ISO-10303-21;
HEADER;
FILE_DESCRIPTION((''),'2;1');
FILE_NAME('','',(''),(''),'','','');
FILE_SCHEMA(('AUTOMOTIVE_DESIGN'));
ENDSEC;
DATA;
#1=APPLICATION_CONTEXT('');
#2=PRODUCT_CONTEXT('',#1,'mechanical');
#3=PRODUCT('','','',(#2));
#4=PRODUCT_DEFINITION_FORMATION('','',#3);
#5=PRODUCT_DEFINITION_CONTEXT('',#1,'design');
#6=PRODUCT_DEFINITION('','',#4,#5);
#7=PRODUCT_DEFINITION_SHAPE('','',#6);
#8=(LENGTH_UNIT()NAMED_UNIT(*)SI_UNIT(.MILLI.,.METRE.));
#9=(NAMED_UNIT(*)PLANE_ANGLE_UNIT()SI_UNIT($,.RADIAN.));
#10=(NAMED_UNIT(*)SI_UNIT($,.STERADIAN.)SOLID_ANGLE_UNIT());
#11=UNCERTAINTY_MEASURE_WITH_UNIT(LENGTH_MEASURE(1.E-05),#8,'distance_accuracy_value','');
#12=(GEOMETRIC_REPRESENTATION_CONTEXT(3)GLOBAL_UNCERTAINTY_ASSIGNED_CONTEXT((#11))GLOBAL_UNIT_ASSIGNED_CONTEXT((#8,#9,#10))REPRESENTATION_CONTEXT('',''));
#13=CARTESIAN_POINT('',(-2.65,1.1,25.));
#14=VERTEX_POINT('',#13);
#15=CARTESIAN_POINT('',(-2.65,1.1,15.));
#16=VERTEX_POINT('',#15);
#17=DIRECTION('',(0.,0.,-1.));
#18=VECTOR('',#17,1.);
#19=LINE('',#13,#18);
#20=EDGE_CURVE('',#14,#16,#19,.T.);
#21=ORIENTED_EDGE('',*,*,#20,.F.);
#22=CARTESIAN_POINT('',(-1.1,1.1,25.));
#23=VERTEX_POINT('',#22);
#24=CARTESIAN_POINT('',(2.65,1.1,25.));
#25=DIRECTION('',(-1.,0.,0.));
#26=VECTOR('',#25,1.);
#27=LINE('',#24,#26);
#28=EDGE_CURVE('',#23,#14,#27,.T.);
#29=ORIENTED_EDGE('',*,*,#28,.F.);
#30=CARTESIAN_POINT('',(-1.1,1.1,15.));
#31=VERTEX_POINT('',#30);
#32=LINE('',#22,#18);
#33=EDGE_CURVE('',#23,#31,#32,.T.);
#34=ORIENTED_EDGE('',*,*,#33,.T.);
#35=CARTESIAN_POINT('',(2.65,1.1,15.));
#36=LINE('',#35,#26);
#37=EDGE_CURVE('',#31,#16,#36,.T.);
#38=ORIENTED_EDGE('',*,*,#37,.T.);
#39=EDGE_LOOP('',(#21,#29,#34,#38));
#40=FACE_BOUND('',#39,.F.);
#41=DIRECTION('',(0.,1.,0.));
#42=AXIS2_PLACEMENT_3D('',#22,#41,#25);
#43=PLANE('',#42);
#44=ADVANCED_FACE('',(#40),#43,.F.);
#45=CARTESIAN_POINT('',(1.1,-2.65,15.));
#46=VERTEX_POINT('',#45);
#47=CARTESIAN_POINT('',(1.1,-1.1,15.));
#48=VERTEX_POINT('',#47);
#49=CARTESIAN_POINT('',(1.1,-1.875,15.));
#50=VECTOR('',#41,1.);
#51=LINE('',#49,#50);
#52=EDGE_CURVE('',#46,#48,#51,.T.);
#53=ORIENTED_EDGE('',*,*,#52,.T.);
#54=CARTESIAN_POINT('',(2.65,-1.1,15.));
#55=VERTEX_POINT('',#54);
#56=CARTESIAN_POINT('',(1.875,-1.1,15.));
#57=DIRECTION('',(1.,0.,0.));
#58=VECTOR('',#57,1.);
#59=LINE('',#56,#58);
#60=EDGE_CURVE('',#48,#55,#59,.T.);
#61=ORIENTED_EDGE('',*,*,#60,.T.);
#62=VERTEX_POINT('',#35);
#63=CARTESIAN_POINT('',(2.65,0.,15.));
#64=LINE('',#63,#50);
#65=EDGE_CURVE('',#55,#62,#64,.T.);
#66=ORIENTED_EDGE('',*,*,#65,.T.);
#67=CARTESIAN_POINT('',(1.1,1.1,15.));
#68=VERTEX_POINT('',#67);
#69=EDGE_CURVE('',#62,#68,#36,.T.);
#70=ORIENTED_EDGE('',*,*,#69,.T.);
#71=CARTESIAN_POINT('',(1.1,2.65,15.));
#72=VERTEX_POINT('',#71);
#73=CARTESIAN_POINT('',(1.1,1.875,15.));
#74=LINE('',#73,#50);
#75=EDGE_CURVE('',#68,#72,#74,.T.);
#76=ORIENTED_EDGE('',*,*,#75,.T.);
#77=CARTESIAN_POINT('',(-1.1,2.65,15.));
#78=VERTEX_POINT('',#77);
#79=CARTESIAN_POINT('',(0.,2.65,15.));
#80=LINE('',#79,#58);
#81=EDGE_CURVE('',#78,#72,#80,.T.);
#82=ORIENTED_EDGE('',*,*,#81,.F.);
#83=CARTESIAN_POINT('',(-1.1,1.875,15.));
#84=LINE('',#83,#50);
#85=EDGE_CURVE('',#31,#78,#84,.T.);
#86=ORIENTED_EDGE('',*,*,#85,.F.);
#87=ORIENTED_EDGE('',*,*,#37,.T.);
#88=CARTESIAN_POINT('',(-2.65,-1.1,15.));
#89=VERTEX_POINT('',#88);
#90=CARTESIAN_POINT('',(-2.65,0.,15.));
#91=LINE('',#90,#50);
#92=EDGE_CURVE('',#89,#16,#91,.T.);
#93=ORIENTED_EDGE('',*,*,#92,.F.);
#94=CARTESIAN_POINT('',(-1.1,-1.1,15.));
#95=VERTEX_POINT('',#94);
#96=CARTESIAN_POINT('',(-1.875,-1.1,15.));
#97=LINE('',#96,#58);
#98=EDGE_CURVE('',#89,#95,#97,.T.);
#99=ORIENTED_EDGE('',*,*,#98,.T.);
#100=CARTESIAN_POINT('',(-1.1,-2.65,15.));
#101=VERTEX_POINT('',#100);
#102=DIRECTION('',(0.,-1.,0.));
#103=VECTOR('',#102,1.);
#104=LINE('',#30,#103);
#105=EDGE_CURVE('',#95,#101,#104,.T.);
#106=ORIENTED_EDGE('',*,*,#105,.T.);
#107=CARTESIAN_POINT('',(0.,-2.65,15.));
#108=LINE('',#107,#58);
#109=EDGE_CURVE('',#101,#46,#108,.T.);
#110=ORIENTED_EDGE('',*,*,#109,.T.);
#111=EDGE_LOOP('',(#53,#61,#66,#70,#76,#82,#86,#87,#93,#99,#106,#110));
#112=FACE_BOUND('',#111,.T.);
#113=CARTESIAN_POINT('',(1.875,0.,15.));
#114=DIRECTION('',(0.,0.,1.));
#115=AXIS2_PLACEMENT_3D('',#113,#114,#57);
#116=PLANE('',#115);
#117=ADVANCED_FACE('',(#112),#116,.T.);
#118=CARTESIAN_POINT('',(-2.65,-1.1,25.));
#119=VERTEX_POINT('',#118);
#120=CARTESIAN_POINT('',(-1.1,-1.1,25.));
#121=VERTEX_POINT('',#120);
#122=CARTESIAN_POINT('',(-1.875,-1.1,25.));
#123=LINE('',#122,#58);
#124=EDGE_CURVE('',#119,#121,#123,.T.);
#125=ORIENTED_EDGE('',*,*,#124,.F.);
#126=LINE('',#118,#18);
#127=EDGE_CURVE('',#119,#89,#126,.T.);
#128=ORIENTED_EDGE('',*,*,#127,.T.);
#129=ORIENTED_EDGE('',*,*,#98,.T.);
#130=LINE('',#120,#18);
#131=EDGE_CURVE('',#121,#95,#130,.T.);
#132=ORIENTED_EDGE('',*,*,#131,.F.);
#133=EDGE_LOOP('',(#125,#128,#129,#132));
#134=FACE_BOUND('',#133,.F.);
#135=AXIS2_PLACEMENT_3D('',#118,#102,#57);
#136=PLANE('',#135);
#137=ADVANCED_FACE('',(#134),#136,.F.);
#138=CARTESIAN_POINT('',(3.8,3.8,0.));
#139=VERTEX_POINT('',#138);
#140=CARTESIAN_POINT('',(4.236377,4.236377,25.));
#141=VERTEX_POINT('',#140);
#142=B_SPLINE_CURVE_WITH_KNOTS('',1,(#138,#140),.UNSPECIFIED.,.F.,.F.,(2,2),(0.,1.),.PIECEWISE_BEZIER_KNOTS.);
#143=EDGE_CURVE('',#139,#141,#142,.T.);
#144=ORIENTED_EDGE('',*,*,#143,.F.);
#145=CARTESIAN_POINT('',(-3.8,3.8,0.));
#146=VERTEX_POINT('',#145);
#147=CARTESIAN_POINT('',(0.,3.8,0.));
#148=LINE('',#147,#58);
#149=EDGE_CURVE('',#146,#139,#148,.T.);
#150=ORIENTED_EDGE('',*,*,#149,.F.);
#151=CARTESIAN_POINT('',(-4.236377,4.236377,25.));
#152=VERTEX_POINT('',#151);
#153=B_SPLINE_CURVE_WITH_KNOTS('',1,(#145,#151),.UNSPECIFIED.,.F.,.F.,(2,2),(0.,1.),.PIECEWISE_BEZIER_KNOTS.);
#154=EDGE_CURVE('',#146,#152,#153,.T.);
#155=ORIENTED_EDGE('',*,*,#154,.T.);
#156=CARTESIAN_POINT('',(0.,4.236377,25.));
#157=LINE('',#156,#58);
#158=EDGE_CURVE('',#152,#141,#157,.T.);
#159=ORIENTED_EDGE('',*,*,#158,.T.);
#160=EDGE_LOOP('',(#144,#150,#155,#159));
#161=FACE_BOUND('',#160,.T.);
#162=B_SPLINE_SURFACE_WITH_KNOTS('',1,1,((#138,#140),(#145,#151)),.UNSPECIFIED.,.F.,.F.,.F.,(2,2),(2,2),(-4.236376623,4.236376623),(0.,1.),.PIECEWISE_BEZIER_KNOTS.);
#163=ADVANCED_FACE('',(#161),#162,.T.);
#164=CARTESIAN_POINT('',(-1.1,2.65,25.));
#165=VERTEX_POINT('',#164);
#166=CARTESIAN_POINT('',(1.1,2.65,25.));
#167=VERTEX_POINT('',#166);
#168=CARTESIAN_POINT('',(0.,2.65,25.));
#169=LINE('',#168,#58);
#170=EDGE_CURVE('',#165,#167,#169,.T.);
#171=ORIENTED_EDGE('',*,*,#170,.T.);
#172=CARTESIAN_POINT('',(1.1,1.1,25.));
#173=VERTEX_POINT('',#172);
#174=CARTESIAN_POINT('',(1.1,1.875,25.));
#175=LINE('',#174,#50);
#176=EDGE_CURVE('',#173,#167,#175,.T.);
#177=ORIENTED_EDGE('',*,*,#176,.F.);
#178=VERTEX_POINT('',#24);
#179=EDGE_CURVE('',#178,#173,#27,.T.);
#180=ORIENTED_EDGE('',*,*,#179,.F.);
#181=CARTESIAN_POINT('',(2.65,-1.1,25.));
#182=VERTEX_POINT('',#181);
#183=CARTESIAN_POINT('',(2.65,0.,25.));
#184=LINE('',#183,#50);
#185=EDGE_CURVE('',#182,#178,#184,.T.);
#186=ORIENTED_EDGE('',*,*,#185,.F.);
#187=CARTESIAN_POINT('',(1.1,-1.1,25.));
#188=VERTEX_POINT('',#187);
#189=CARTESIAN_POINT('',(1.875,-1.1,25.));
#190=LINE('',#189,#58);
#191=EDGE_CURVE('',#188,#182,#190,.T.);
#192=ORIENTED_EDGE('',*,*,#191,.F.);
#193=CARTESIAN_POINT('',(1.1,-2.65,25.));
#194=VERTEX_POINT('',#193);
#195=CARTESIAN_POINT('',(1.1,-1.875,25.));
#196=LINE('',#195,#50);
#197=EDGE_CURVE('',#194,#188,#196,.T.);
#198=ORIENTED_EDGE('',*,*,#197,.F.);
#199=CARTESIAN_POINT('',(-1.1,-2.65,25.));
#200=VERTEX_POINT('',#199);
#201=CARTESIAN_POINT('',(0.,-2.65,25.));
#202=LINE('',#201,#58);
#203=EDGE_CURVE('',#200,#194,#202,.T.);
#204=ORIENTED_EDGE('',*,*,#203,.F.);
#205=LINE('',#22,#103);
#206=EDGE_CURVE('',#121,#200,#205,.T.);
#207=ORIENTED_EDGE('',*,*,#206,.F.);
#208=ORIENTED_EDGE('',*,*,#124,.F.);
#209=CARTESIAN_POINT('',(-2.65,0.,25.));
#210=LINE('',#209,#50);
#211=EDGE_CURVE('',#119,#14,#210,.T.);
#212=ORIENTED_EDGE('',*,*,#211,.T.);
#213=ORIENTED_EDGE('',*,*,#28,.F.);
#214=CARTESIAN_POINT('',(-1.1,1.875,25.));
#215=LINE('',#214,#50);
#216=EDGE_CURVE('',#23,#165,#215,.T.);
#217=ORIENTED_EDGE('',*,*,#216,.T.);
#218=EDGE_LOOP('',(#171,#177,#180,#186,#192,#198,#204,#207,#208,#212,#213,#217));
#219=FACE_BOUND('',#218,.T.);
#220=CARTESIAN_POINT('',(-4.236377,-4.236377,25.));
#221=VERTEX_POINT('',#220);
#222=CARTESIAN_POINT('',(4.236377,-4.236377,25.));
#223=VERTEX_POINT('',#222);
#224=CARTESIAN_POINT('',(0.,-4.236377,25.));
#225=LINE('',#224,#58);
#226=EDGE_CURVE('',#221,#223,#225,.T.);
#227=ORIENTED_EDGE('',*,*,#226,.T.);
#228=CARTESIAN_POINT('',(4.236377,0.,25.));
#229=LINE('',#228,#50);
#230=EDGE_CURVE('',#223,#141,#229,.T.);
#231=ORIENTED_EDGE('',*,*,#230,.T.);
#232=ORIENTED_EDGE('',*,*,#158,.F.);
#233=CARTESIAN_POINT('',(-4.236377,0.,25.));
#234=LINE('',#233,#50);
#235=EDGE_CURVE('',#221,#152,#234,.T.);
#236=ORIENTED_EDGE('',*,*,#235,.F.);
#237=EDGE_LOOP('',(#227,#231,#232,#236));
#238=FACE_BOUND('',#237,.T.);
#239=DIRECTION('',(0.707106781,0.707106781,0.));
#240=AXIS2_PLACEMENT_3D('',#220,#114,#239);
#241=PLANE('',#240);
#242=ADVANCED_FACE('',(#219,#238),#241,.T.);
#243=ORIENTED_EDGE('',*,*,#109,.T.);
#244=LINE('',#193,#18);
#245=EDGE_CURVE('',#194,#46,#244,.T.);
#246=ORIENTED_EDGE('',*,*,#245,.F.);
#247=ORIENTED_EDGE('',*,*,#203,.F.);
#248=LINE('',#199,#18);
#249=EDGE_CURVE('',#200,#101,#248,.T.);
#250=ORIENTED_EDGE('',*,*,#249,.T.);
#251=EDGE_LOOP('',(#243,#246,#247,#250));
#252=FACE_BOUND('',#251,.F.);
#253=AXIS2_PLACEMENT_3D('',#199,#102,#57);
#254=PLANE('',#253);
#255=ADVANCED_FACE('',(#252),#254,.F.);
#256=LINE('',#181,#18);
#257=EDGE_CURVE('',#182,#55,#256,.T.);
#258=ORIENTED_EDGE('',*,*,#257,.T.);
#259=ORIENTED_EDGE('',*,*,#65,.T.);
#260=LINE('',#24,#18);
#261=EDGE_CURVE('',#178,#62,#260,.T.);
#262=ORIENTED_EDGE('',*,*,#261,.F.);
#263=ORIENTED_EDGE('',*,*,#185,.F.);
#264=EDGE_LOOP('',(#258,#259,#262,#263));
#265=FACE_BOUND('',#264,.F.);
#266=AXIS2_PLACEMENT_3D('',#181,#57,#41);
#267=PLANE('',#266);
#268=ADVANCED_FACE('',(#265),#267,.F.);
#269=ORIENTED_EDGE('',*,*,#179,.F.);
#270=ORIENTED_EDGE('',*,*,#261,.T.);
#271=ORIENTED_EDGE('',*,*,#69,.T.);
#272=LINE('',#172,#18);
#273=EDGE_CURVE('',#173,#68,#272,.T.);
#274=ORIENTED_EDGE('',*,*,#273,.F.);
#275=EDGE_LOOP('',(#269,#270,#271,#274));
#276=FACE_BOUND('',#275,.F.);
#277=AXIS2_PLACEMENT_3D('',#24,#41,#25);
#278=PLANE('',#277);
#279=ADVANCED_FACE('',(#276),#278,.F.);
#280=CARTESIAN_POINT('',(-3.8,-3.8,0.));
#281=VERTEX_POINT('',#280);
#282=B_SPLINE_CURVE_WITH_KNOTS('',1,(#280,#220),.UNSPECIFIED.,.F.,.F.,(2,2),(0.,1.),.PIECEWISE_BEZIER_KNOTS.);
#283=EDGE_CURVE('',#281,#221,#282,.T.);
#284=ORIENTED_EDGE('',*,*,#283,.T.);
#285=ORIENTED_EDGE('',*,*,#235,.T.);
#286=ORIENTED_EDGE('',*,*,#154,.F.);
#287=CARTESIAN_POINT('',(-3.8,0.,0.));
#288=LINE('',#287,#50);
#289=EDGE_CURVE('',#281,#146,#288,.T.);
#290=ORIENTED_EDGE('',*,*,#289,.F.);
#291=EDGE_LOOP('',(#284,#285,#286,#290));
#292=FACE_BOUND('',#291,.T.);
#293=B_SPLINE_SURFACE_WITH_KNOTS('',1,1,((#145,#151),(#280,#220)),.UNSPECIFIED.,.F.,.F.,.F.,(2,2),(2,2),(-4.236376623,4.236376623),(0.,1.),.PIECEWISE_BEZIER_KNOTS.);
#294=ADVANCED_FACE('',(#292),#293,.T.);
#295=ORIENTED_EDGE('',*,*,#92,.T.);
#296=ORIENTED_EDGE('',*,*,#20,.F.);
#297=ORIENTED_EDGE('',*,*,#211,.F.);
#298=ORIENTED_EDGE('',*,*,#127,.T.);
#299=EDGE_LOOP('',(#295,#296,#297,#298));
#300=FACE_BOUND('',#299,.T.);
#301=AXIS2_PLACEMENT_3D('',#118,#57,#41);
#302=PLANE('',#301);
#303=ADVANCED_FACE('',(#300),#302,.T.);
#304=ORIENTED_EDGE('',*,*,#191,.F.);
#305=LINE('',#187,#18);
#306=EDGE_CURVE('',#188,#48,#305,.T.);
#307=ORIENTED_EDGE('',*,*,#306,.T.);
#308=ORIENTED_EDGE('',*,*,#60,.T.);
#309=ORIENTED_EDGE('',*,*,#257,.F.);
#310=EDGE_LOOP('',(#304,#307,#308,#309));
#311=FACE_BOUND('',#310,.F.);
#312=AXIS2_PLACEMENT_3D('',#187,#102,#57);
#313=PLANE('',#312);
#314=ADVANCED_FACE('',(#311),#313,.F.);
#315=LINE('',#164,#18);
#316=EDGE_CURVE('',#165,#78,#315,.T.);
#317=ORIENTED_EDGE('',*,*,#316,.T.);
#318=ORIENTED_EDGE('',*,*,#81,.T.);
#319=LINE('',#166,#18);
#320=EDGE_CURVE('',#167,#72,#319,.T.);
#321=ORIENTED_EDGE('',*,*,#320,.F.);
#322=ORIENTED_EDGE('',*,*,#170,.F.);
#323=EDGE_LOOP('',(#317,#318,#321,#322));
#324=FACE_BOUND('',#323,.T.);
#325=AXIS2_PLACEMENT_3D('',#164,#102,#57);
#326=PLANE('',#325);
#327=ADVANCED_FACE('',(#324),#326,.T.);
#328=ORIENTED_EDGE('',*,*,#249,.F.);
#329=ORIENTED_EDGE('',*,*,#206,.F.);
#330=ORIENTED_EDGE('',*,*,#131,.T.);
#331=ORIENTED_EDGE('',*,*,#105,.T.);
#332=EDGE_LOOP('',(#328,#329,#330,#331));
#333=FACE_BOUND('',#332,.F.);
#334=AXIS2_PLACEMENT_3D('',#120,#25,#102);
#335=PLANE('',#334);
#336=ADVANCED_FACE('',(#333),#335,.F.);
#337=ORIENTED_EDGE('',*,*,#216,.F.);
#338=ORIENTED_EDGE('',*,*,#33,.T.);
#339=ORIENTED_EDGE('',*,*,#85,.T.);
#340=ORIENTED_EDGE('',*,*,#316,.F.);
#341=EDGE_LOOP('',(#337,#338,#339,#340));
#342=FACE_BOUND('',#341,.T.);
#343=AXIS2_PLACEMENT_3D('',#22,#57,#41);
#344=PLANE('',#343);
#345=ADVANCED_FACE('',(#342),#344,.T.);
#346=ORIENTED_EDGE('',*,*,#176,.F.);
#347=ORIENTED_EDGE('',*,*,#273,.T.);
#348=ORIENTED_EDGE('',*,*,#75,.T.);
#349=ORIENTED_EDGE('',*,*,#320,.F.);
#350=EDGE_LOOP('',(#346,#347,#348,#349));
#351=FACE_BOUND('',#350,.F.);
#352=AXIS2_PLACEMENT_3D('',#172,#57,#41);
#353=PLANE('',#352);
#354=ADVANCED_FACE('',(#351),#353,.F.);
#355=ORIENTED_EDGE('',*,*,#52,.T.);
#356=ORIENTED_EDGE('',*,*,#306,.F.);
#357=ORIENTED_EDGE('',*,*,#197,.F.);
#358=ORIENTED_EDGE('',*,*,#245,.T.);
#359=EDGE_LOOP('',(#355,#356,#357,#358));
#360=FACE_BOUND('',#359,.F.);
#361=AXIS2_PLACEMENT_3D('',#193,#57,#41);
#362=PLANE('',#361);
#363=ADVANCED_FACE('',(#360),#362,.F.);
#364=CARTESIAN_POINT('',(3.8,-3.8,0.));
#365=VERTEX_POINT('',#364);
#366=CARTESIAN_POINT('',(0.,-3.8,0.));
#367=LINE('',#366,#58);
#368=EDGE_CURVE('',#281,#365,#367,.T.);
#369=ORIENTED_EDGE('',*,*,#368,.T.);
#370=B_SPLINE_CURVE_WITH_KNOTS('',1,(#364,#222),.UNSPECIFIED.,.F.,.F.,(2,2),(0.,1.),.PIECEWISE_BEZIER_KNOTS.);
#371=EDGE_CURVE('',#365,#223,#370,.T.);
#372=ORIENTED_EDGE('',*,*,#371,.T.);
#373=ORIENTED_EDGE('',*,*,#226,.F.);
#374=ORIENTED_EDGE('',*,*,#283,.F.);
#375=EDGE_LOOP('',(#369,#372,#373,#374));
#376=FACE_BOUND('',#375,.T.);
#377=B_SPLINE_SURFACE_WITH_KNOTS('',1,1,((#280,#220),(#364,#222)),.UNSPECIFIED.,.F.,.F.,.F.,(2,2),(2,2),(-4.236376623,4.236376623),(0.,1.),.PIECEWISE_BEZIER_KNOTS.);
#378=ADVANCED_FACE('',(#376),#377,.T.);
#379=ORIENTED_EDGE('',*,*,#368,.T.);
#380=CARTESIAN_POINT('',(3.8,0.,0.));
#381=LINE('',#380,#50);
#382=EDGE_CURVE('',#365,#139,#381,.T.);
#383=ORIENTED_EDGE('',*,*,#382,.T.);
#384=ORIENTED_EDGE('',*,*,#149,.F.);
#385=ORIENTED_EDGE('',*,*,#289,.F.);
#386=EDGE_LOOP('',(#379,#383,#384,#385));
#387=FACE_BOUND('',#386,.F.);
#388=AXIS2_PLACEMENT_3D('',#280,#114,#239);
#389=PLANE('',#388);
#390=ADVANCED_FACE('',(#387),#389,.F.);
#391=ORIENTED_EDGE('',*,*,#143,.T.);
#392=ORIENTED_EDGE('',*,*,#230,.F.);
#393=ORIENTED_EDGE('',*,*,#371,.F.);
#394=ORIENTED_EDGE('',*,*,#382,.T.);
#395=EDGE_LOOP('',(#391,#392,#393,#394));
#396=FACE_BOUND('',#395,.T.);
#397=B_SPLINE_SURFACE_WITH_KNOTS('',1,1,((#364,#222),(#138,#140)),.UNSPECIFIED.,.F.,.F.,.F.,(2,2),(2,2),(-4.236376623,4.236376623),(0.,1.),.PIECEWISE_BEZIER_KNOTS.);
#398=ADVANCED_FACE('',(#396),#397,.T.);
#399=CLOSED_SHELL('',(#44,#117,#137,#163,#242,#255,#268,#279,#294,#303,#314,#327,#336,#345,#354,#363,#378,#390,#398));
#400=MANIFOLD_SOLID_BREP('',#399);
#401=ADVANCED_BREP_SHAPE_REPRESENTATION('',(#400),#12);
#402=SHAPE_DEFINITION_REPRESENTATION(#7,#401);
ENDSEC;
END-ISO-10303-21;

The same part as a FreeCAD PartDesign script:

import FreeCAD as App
import Part
import Sketcher
from FreeCAD import Vector


def add_polygon(sketch, points):
    """Adds a closed chain of lines whose ends are joined by coincident constraints."""
    first, n = sketch.GeometryCount, len(points)
    for a, b in zip(points, points[1:] + points[:1]):
        sketch.addGeometry(Part.LineSegment(App.Vector(*a, 0), App.Vector(*b, 0)), False)
    for i in range(n):
        sketch.addConstraint(Sketcher.Constraint("Coincident", first + i, 2, first + (i + 1) % n, 1))

doc = App.newDocument("Part")
body = doc.addObject("PartDesign::Body", "Body")

# Sketch on XY plane
sketch1 = body.newObject("Sketcher::SketchObject", "Sketch")
sketch1.AttachmentSupport = (doc.getObject("XY_Plane"), [""])
sketch1.MapMode = "FlatFace"
add_polygon(sketch1, [(-3.8, 3.8), (-3.8, -3.8), (3.8, -3.8), (3.8, 3.8)])  # lines 0-3
sketch1.addConstraint([
    Sketcher.Constraint("Vertical", 0),
    Sketcher.Constraint("Horizontal", 1),
    Sketcher.Constraint("Vertical", 2),
    Sketcher.Constraint("Horizontal", 3),
    Sketcher.Constraint("Symmetric", 0, 2, 2, 2, -1, 1),
    Sketcher.Constraint("Equal", 3, 0),
    Sketcher.Constraint("DistanceX", 1, 1, 1, 2, 7.6),
])
pad1 = body.newObject("PartDesign::Pad", "Pad")
pad1.Profile = sketch1
pad1.Length = 25
pad1.TaperAngle = 1

# Sketch on XY plane
sketch2 = body.newObject("Sketcher::SketchObject", "Sketch001")
sketch2.AttachmentSupport = (doc.getObject("XY_Plane"), [""])
sketch2.MapMode = "FlatFace"
sketch2.AttachmentOffset = App.Placement(Vector(0, 0, 25), App.Rotation())
add_polygon(sketch2, [(1.1, -1.1), (2.65, -1.1), (2.65, 1.1), (1.1, 1.1), (1.1, 2.65), (-1.1, 2.65), (-1.1, 1.1), (-2.65, 1.1), (-2.65, -1.1), (-1.1, -1.1), (-1.1, -2.65), (1.1, -2.65)])  # lines 0-11
sketch2.addConstraint([
    Sketcher.Constraint("Horizontal", 0),
    Sketcher.Constraint("Vertical", 1),
    Sketcher.Constraint("Horizontal", 2),
    Sketcher.Constraint("Vertical", 3),
    Sketcher.Constraint("Horizontal", 4),
    Sketcher.Constraint("Vertical", 5),
    Sketcher.Constraint("Horizontal", 6),
    Sketcher.Constraint("Vertical", 7),
    Sketcher.Constraint("Horizontal", 8),
    Sketcher.Constraint("Vertical", 9),
    Sketcher.Constraint("Horizontal", 10),
    Sketcher.Constraint("Vertical", 11),
    Sketcher.Constraint("Symmetric", 0, 2, 6, 2, -1, 1),
    Sketcher.Constraint("Symmetric", 2, 2, 8, 2, -1, 1),
    Sketcher.Constraint("Symmetric", 4, 2, 10, 2, -1, 1),
    Sketcher.Constraint("Symmetric", 2, 2, 5, 2, -2),
    Sketcher.Constraint("Equal", 10, 1),
    Sketcher.Constraint("Equal", 8, 3),
    Sketcher.Constraint("DistanceX", 4, 2, 4, 1, 2.2),
    Sketcher.Constraint("DistanceX", 0, 1, 0, 2, 1.55),
])
pocket1 = body.newObject("PartDesign::Pocket", "Pocket")
pocket1.Profile = sketch2
pocket1.Length = 10

doc.recompute()
